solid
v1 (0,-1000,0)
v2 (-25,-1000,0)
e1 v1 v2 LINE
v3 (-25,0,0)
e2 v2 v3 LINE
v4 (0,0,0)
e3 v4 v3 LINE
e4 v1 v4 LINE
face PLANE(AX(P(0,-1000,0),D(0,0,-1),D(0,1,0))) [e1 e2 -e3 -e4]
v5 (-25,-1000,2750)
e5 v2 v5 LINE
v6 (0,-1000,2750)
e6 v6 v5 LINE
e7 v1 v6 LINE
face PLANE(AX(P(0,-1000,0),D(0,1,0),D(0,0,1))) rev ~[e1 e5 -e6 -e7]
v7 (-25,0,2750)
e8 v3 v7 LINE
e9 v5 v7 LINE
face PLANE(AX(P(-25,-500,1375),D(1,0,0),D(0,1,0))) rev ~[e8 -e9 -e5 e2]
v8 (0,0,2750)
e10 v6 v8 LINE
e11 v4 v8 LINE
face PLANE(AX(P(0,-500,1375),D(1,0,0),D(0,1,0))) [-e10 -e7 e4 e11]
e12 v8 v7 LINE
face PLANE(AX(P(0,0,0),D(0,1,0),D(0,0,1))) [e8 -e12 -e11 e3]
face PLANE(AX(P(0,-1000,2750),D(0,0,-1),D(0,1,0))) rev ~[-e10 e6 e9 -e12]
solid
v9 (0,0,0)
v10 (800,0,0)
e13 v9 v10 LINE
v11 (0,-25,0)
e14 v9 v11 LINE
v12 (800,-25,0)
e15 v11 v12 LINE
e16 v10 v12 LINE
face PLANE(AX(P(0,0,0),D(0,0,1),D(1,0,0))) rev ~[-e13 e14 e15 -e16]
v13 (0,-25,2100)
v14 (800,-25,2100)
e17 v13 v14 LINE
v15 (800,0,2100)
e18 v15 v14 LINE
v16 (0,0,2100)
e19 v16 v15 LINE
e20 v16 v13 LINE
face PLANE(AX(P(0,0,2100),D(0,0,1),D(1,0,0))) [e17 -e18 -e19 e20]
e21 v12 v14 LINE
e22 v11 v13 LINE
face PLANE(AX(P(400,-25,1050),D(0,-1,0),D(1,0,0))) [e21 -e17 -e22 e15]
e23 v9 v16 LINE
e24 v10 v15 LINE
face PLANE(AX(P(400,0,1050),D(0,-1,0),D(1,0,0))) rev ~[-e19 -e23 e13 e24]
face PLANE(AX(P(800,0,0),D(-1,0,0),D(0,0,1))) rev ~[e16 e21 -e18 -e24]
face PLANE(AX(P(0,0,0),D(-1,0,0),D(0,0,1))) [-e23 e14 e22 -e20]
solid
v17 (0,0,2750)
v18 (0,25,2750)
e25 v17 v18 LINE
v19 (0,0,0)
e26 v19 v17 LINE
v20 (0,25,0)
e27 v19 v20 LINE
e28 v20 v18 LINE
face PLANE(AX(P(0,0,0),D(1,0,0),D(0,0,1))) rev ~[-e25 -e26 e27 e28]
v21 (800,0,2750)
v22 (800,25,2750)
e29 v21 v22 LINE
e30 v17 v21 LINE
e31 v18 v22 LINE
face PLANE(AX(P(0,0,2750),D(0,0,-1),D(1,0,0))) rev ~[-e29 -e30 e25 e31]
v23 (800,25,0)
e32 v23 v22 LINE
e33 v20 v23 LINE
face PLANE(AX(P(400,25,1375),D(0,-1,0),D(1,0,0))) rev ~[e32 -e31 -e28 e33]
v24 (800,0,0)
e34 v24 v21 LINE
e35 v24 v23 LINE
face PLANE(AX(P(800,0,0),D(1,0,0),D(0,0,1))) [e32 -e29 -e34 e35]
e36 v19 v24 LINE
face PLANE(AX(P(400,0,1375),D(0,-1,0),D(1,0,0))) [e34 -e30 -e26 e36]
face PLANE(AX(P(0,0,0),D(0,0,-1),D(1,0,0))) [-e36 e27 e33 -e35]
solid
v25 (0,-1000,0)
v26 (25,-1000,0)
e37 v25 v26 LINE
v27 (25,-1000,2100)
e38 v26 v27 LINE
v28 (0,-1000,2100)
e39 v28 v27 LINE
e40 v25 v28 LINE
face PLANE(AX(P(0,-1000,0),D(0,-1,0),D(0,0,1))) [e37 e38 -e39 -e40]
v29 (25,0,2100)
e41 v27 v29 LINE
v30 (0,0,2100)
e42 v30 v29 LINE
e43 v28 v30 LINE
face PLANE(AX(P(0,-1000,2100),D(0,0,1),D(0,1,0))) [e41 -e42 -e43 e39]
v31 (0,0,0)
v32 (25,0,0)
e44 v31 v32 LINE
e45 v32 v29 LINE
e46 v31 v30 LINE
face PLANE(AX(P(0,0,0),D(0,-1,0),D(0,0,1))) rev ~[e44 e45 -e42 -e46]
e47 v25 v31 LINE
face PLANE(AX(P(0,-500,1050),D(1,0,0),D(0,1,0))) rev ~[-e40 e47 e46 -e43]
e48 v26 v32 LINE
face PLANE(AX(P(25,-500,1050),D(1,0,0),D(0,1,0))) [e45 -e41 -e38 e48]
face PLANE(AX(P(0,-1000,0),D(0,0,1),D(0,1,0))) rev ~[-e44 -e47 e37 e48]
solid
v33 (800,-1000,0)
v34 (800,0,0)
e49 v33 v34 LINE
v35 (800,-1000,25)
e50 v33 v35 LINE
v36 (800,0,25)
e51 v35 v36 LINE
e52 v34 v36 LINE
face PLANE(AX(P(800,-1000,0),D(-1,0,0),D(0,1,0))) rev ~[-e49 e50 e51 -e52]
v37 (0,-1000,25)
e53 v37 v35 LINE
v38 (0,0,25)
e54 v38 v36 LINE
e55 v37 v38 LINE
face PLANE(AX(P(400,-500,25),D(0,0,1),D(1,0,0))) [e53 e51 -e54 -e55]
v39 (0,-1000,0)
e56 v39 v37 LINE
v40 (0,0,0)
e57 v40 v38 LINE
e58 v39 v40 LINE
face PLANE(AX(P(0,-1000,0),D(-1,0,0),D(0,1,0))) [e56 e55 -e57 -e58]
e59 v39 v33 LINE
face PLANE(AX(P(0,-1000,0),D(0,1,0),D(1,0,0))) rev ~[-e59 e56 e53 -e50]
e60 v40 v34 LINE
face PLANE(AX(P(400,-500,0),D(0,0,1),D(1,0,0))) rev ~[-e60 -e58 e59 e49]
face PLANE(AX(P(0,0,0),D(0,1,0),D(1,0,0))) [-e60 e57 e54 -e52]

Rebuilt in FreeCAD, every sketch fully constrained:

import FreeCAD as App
import Part
import Sketcher

V = App.Vector
Q = App.Units.Quantity

doc = App.newDocument("Part")
body = doc.addObject("PartDesign::Body", "Body")
body.AllowCompound = True

# Sketch on XZ plane
sketch1 = body.newObject("Sketcher::SketchObject", "Sketch")
sketch1.AttachmentSupport = (doc.getObject("XZ_Plane"), [""])
sketch1.MapMode = "FlatFace"
sketch1.addGeometry([
    Part.LineSegment(V(0, 2750, 0), V(0, 0, 0)),
    Part.LineSegment(V(0, 0, 0), V(800, 0, 0)),
    Part.LineSegment(V(800, 0, 0), V(800, 2750, 0)),
    Part.LineSegment(V(800, 2750, 0), V(0, 2750, 0)),
], False)
sketch1.addConstraint([
    Sketcher.Constraint("Coincident", 0, 2, 1, 1),
    Sketcher.Constraint("Coincident", 1, 2, 2, 1),
    Sketcher.Constraint("Coincident", 2, 2, 3, 1),
    Sketcher.Constraint("Coincident", 3, 2, 0, 1),
    Sketcher.Constraint("Vertical", 0),
    Sketcher.Constraint("Horizontal", 1),
    Sketcher.Constraint("Vertical", 2),
    Sketcher.Constraint("Horizontal", 3),
    Sketcher.Constraint("Coincident", 0, 2, -1, 1),
    Sketcher.Constraint("DistanceX", 1, 1, 1, 2, Q("800 mm")),
    Sketcher.Constraint("DistanceY", 0, 2, 0, 1, Q("2750 mm")),
])
pad1 = body.newObject("PartDesign::Pad", "Pad")
pad1.Profile = sketch1
pad1.Length = 25
pad1.Reversed = True

# Sketch on YZ plane
sketch2 = body.newObject("Sketcher::SketchObject", "Sketch001")
sketch2.AttachmentSupport = (doc.getObject("YZ_Plane"), [""])
sketch2.MapMode = "FlatFace"
sketch2.addGeometry([
    Part.LineSegment(V(-1000, 2750, 0), V(-1000, 0, 0)),
    Part.LineSegment(V(-1000, 0, 0), V(0, 0, 0)),
    Part.LineSegment(V(0, 0, 0), V(0, 2750, 0)),
    Part.LineSegment(V(0, 2750, 0), V(-1000, 2750, 0)),
], False)
sketch2.addConstraint([
    Sketcher.Constraint("Coincident", 0, 2, 1, 1),
    Sketcher.Constraint("Coincident", 1, 2, 2, 1),
    Sketcher.Constraint("Coincident", 2, 2, 3, 1),
    Sketcher.Constraint("Coincident", 3, 2, 0, 1),
    Sketcher.Constraint("Vertical", 0),
    Sketcher.Constraint("Horizontal", 1),
    Sketcher.Constraint("Vertical", 2),
    Sketcher.Constraint("Horizontal", 3),
    Sketcher.Constraint("Coincident", 1, 2, -1, 1),
    Sketcher.Constraint("DistanceX", 1, 1, 1, 2, Q("1000 mm")),
    Sketcher.Constraint("DistanceY", 0, 2, 0, 1, Q("2750 mm")),
])
pad2 = body.newObject("PartDesign::Pad", "Pad001")
pad2.Profile = sketch2
pad2.Length = 25
pad2.Reversed = True
body2 = doc.addObject("PartDesign::Body", "Body001")

# Sketch on XY plane
sketch3 = body2.newObject("Sketcher::SketchObject", "Sketch002")
sketch3.AttachmentSupport = (doc.getObject("XY_Plane001"), [""])
sketch3.MapMode = "FlatFace"
sketch3.addGeometry([
    Part.LineSegment(V(0, 0, 0), V(0, -1000, 0)),
    Part.LineSegment(V(0, -1000, 0), V(800, -1000, 0)),
    Part.LineSegment(V(800, -1000, 0), V(800, 0, 0)),
    Part.LineSegment(V(800, 0, 0), V(0, 0, 0)),
], False)
sketch3.addConstraint([
    Sketcher.Constraint("Coincident", 0, 2, 1, 1),
    Sketcher.Constraint("Coincident", 1, 2, 2, 1),
    Sketcher.Constraint("Coincident", 2, 2, 3, 1),
    Sketcher.Constraint("Coincident", 3, 2, 0, 1),
    Sketcher.Constraint("Vertical", 0),
    Sketcher.Constraint("Horizontal", 1),
    Sketcher.Constraint("Vertical", 2),
    Sketcher.Constraint("Horizontal", 3),
    Sketcher.Constraint("Coincident", 3, 2, -1, 1),
    Sketcher.Constraint("DistanceX", 1, 1, 1, 2, Q("800 mm")),
    Sketcher.Constraint("DistanceY", 0, 2, 0, 1, Q("1000 mm")),
])
pad3 = body2.newObject("PartDesign::Pad", "Pad002")
pad3.Profile = sketch3
pad3.Length = 25
body3 = doc.addObject("PartDesign::Body", "Body002")

# Sketch on XZ plane
sketch4 = body3.newObject("Sketcher::SketchObject", "Sketch003")
sketch4.AttachmentSupport = (doc.getObject("XZ_Plane002"), [""])
sketch4.MapMode = "FlatFace"
sketch4.addGeometry([
    Part.LineSegment(V(0, 2100, 0), V(0, 0, 0)),
    Part.LineSegment(V(0, 0, 0), V(800, 0, 0)),
    Part.LineSegment(V(800, 0, 0), V(800, 2100, 0)),
    Part.LineSegment(V(800, 2100, 0), V(0, 2100, 0)),
], False)
sketch4.addConstraint([
    Sketcher.Constraint("Coincident", 0, 2, 1, 1),
    Sketcher.Constraint("Coincident", 1, 2, 2, 1),
    Sketcher.Constraint("Coincident", 2, 2, 3, 1),
    Sketcher.Constraint("Coincident", 3, 2, 0, 1),
    Sketcher.Constraint("Vertical", 0),
    Sketcher.Constraint("Horizontal", 1),
    Sketcher.Constraint("Vertical", 2),
    Sketcher.Constraint("Horizontal", 3),
    Sketcher.Constraint("Coincident", 0, 2, -1, 1),
    Sketcher.Constraint("DistanceX", 1, 1, 1, 2, Q("800 mm")),
    Sketcher.Constraint("DistanceY", 0, 2, 0, 1, Q("2100 mm")),
])
pad4 = body3.newObject("PartDesign::Pad", "Pad003")
pad4.Profile = sketch4
pad4.Length = 25
body4 = doc.addObject("PartDesign::Body", "Body003")

# Sketch on YZ plane
sketch5 = body4.newObject("Sketcher::SketchObject", "Sketch004")
sketch5.AttachmentSupport = (doc.getObject("YZ_Plane003"), [""])
sketch5.MapMode = "FlatFace"
sketch5.addGeometry([
    Part.LineSegment(V(-1000, 2100, 0), V(-1000, 0, 0)),
    Part.LineSegment(V(-1000, 0, 0), V(0, 0, 0)),
    Part.LineSegment(V(0, 0, 0), V(0, 2100, 0)),
    Part.LineSegment(V(0, 2100, 0), V(-1000, 2100, 0)),
], False)
sketch5.addConstraint([
    Sketcher.Constraint("Coincident", 0, 2, 1, 1),
    Sketcher.Constraint("Coincident", 1, 2, 2, 1),
    Sketcher.Constraint("Coincident", 2, 2, 3, 1),
    Sketcher.Constraint("Coincident", 3, 2, 0, 1),
    Sketcher.Constraint("Vertical", 0),
    Sketcher.Constraint("Horizontal", 1),
    Sketcher.Constraint("Vertical", 2),
    Sketcher.Constraint("Horizontal", 3),
    Sketcher.Constraint("Coincident", 1, 2, -1, 1),
    Sketcher.Constraint("DistanceX", 1, 1, 1, 2, Q("1000 mm")),
    Sketcher.Constraint("DistanceY", 0, 2, 0, 1, Q("2100 mm")),
])
pad5 = body4.newObject("PartDesign::Pad", "Pad004")
pad5.Profile = sketch5
pad5.Length = 25

doc.recompute()
